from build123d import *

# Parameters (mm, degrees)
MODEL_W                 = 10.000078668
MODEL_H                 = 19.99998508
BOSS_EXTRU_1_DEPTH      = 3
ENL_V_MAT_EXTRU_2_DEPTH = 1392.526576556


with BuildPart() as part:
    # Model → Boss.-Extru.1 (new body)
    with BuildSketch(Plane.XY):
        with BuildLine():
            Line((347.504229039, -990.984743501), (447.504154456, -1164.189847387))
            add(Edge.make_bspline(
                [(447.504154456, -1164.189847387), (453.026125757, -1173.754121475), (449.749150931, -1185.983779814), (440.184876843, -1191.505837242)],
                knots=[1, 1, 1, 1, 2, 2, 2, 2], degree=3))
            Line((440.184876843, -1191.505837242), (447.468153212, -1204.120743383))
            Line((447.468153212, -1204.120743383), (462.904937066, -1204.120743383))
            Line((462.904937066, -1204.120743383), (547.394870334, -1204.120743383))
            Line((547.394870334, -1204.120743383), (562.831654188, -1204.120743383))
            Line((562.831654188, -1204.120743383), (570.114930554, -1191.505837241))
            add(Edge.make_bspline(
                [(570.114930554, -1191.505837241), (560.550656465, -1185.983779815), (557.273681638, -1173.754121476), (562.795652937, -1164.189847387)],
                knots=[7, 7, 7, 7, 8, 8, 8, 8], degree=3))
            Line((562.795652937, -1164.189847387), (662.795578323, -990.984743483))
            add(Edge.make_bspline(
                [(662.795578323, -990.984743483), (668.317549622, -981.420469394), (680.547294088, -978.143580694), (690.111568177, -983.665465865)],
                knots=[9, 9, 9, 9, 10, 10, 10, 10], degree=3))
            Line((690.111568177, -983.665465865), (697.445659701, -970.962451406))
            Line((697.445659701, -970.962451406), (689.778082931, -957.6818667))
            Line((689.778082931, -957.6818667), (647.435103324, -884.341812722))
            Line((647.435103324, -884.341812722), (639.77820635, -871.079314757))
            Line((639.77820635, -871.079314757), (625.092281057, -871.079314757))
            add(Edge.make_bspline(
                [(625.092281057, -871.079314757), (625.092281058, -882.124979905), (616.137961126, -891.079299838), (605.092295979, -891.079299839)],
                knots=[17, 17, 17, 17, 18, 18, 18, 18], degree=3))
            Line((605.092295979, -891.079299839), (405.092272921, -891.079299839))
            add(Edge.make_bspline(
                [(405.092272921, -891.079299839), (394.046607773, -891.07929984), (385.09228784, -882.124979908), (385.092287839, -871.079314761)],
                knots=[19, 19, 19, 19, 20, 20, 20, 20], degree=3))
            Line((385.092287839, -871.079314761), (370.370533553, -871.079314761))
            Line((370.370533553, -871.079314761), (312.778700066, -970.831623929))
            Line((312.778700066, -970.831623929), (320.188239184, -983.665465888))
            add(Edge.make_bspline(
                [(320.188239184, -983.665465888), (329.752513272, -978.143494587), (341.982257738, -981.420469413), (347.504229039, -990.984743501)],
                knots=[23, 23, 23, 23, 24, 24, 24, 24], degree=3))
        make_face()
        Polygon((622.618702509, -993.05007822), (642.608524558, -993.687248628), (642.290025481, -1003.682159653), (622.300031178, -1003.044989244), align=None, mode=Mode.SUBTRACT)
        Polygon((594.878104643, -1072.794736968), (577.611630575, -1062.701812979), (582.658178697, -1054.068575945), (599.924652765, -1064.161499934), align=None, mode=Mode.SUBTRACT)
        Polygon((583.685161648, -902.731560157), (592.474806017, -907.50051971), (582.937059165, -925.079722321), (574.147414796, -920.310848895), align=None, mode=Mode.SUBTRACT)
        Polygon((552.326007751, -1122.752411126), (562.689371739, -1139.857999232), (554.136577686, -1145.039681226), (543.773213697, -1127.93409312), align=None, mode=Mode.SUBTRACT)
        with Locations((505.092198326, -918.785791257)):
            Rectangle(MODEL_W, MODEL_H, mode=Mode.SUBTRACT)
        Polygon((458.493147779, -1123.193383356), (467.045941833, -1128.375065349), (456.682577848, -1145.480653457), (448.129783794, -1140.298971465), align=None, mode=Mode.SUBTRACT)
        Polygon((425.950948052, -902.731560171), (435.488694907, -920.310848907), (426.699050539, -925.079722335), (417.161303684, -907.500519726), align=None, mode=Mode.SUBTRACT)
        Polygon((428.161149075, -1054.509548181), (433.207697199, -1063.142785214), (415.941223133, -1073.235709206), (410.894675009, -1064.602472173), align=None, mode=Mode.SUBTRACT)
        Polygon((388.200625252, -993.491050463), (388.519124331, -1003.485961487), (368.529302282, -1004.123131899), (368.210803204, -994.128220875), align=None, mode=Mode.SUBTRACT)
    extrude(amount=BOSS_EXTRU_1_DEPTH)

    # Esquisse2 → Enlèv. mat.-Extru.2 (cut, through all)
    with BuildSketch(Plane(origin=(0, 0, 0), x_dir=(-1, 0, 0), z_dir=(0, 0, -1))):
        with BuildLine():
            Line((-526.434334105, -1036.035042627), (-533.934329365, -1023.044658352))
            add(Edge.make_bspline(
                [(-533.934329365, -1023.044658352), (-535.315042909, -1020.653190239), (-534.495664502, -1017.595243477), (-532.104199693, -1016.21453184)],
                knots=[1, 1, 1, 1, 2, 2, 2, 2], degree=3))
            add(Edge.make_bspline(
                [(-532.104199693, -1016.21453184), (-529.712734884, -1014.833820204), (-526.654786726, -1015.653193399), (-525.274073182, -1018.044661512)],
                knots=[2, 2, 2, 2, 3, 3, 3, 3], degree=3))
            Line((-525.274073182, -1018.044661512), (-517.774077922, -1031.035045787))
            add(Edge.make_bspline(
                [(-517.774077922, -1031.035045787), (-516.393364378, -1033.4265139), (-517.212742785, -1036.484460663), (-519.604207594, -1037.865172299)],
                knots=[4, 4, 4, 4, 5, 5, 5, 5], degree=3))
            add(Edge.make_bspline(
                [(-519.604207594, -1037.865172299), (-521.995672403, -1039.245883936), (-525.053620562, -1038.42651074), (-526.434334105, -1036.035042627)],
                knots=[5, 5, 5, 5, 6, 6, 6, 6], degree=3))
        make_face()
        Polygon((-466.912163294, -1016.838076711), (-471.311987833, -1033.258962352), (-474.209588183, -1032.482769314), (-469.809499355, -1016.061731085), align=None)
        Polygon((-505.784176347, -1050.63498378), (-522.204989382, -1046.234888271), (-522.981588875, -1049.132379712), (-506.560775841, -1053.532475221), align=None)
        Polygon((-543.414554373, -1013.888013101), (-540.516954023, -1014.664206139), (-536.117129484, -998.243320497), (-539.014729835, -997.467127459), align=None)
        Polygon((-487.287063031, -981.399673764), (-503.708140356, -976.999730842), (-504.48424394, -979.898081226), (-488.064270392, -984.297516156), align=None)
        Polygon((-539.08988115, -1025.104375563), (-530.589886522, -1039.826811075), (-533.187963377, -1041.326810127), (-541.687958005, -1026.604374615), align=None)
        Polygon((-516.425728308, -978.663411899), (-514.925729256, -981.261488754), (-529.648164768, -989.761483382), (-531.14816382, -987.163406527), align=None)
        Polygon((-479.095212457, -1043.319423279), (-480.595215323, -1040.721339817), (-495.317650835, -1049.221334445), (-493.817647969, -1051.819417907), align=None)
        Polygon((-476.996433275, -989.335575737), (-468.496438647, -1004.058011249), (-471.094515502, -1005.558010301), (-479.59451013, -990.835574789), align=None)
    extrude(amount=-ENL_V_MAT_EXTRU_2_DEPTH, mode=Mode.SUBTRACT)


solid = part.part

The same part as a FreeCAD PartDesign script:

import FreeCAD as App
import Part
import Sketcher
from FreeCAD import Vector

doc = App.newDocument("Part")
body = doc.addObject("PartDesign::Body", "Body")

sketch1 = body.newObject("Sketcher::SketchObject", "Sketch")
sketch1.AttachmentSupport = (doc.getObject("XY_Plane"), [""])
sketch1.MapMode = "FlatFace"
sketch1.addGeometry(Part.LineSegment(Vector(347.504229, -990.984744, 0), Vector(447.504154, -1164.189847, 0)), False)
sketch1.addGeometry(Part.BSplineCurve([Vector(447.504154, -1164.189847, 0), Vector(453.026126, -1173.754121, 0), Vector(449.749151, -1185.98378, 0), Vector(440.184877, -1191.505837, 0)], [4, 4], [1, 2], False, 3, [1, 1, 1, 1], False), False)
sketch1.addGeometry(Part.LineSegment(Vector(440.184877, -1191.505837, 0), Vector(447.468153, -1204.120743, 0)), False)
sketch1.addGeometry(Part.LineSegment(Vector(447.468153, -1204.120743, 0), Vector(562.831654, -1204.120743, 0)), False)
sketch1.addGeometry(Part.LineSegment(Vector(562.831654, -1204.120743, 0), Vector(570.114931, -1191.505837, 0)), False)
sketch1.addGeometry(Part.BSplineCurve([Vector(570.114931, -1191.505837, 0), Vector(560.550656, -1185.98378, 0), Vector(557.273682, -1173.754121, 0), Vector(562.795653, -1164.189847, 0)], [4, 4], [7, 8], False, 3, [1, 1, 1, 1], False), False)
sketch1.addGeometry(Part.LineSegment(Vector(562.795653, -1164.189847, 0), Vector(662.795578, -990.984743, 0)), False)
sketch1.addGeometry(Part.BSplineCurve([Vector(662.795578, -990.984743, 0), Vector(668.31755, -981.420469, 0), Vector(680.547294, -978.143581, 0), Vector(690.111568, -983.665466, 0)], [4, 4], [9, 10], False, 3, [1, 1, 1, 1], False), False)
sketch1.addGeometry(Part.LineSegment(Vector(690.111568, -983.665466, 0), Vector(697.44566, -970.962451, 0)), False)
sketch1.addGeometry(Part.LineSegment(Vector(697.44566, -970.962451, 0), Vector(689.778083, -957.681867, 0)), False)
sketch1.addGeometry(Part.LineSegment(Vector(689.778083, -957.681867, 0), Vector(647.435103, -884.341813, 0)), False)
sketch1.addGeometry(Part.LineSegment(Vector(647.435103, -884.341813, 0), Vector(639.778206, -871.079315, 0)), False)
sketch1.addGeometry(Part.LineSegment(Vector(639.778206, -871.079315, 0), Vector(625.092281, -871.079315, 0)), False)
sketch1.addGeometry(Part.BSplineCurve([Vector(625.092281, -871.079315, 0), Vector(625.092281, -882.12498, 0), Vector(616.137961, -891.0793, 0), Vector(605.092296, -891.0793, 0)], [4, 4], [17, 18], False, 3, [1, 1, 1, 1], False), False)
sketch1.addGeometry(Part.LineSegment(Vector(605.092296, -891.0793, 0), Vector(405.092273, -891.0793, 0)), False)
sketch1.addGeometry(Part.BSplineCurve([Vector(405.092273, -891.0793, 0), Vector(394.046608, -891.0793, 0), Vector(385.092288, -882.12498, 0), Vector(385.092288, -871.079315, 0)], [4, 4], [19, 20], False, 3, [1, 1, 1, 1], False), False)
sketch1.addGeometry(Part.LineSegment(Vector(385.092288, -871.079315, 0), Vector(370.370534, -871.079315, 0)), False)
sketch1.addGeometry(Part.LineSegment(Vector(370.370534, -871.079315, 0), Vector(312.7787, -970.831624, 0)), False)
sketch1.addGeometry(Part.LineSegment(Vector(312.7787, -970.831624, 0), Vector(320.188239, -983.665466, 0)), False)
sketch1.addGeometry(Part.BSplineCurve([Vector(320.188239, -983.665466, 0), Vector(329.752513, -978.143495, 0), Vector(341.982258, -981.420469, 0), Vector(347.504229, -990.984744, 0)], [4, 4], [23, 24], False, 3, [1, 1, 1, 1], False), False)
sketch1.addGeometry(Part.LineSegment(Vector(448.129784, -1140.298971, 0), Vector(458.493148, -1123.193383, 0)), False)
sketch1.addGeometry(Part.LineSegment(Vector(458.493148, -1123.193383, 0), Vector(467.045942, -1128.375065, 0)), False)
sketch1.addGeometry(Part.LineSegment(Vector(467.045942, -1128.375065, 0), Vector(456.682578, -1145.480653, 0)), False)
sketch1.addGeometry(Part.LineSegment(Vector(456.682578, -1145.480653, 0), Vector(448.129784, -1140.298971, 0)), False)
sketch1.addGeometry(Part.LineSegment(Vector(410.894675, -1064.602472, 0), Vector(428.161149, -1054.509548, 0)), False)
sketch1.addGeometry(Part.LineSegment(Vector(428.161149, -1054.509548, 0), Vector(433.207697, -1063.142785, 0)), False)
sketch1.addGeometry(Part.LineSegment(Vector(433.207697, -1063.142785, 0), Vector(415.941223, -1073.235709, 0)), False)
sketch1.addGeometry(Part.LineSegment(Vector(415.941223, -1073.235709, 0), Vector(410.894675, -1064.602472, 0)), False)
sketch1.addGeometry(Part.LineSegment(Vector(543.773214, -1127.934093, 0), Vector(552.326008, -1122.752411, 0)), False)
sketch1.addGeometry(Part.LineSegment(Vector(552.326008, -1122.752411, 0), Vector(562.689372, -1139.857999, 0)), False)
sketch1.addGeometry(Part.LineSegment(Vector(562.689372, -1139.857999, 0), Vector(554.136578, -1145.039681, 0)), False)
sketch1.addGeometry(Part.LineSegment(Vector(554.136578, -1145.039681, 0), Vector(543.773214, -1127.934093, 0)), False)
sketch1.addGeometry(Part.LineSegment(Vector(599.924653, -1064.1615, 0), Vector(594.878105, -1072.794737, 0)), False)
sketch1.addGeometry(Part.LineSegment(Vector(594.878105, -1072.794737, 0), Vector(577.611631, -1062.701813, 0)), False)
sketch1.addGeometry(Part.LineSegment(Vector(577.611631, -1062.701813, 0), Vector(582.658179, -1054.068576, 0)), False)
sketch1.addGeometry(Part.LineSegment(Vector(582.658179, -1054.068576, 0), Vector(599.924653, -1064.1615, 0)), False)
sketch1.addGeometry(Part.LineSegment(Vector(368.210803, -994.128221, 0), Vector(388.200625, -993.49105, 0)), False)
sketch1.addGeometry(Part.LineSegment(Vector(388.200625, -993.49105, 0), Vector(388.519124, -1003.485961, 0)), False)
sketch1.addGeometry(Part.LineSegment(Vector(388.519124, -1003.485961, 0), Vector(368.529302, -1004.123132, 0)), False)
sketch1.addGeometry(Part.LineSegment(Vector(368.529302, -1004.123132, 0), Vector(368.210803, -994.128221, 0)), False)
sketch1.addGeometry(Part.LineSegment(Vector(417.161304, -907.50052, 0), Vector(425.950948, -902.73156, 0)), False)
sketch1.addGeometry(Part.LineSegment(Vector(425.950948, -902.73156, 0), Vector(435.488695, -920.310849, 0)), False)
sketch1.addGeometry(Part.LineSegment(Vector(435.488695, -920.310849, 0), Vector(426.699051, -925.079722, 0)), False)
sketch1.addGeometry(Part.LineSegment(Vector(426.699051, -925.079722, 0), Vector(417.161304, -907.50052, 0)), False)
sketch1.addGeometry(Part.LineSegment(Vector(510.092238, -928.785784, 0), Vector(500.092159, -928.785784, 0)), False)
sketch1.addGeometry(Part.LineSegment(Vector(500.092159, -928.785784, 0), Vector(500.092159, -908.785799, 0)), False)
sketch1.addGeometry(Part.LineSegment(Vector(500.092159, -908.785799, 0), Vector(510.092238, -908.785799, 0)), False)
sketch1.addGeometry(Part.LineSegment(Vector(510.092238, -908.785799, 0), Vector(510.092238, -928.785784, 0)), False)
sketch1.addGeometry(Part.LineSegment(Vector(622.300031, -1003.044989, 0), Vector(622.618703, -993.050078, 0)), False)
sketch1.addGeometry(Part.LineSegment(Vector(622.618703, -993.050078, 0), Vector(642.608525, -993.687249, 0)), False)
sketch1.addGeometry(Part.LineSegment(Vector(642.608525, -993.687249, 0), Vector(642.290025, -1003.68216, 0)), False)
sketch1.addGeometry(Part.LineSegment(Vector(642.290025, -1003.68216, 0), Vector(622.300031, -1003.044989, 0)), False)
sketch1.addGeometry(Part.LineSegment(Vector(574.147415, -920.310849, 0), Vector(583.685162, -902.73156, 0)), False)
sketch1.addGeometry(Part.LineSegment(Vector(583.685162, -902.73156, 0), Vector(592.474806, -907.50052, 0)), False)
sketch1.addGeometry(Part.LineSegment(Vector(592.474806, -907.50052, 0), Vector(582.937059, -925.079722, 0)), False)
sketch1.addGeometry(Part.LineSegment(Vector(582.937059, -925.079722, 0), Vector(574.147415, -920.310849, 0)), False)
sketch1.addConstraint(Sketcher.Constraint("Block", 1))
sketch1.addConstraint(Sketcher.Constraint("Block", 5))
sketch1.addConstraint(Sketcher.Constraint("Block", 7))
sketch1.addConstraint(Sketcher.Constraint("Block", 13))
sketch1.addConstraint(Sketcher.Constraint("Block", 15))
sketch1.addConstraint(Sketcher.Constraint("Block", 19))
sketch1.addConstraint(Sketcher.Constraint("Coincident", 0, 2, 1, 1))
sketch1.addConstraint(Sketcher.Constraint("Coincident", 1, 2, 2, 1))
sketch1.addConstraint(Sketcher.Constraint("Coincident", 2, 2, 3, 1))
sketch1.addConstraint(Sketcher.Constraint("Coincident", 3, 2, 4, 1))
sketch1.addConstraint(Sketcher.Constraint("Coincident", 4, 2, 5, 1))
sketch1.addConstraint(Sketcher.Constraint("Coincident", 5, 2, 6, 1))
sketch1.addConstraint(Sketcher.Constraint("Coincident", 6, 2, 7, 1))
sketch1.addConstraint(Sketcher.Constraint("Coincident", 7, 2, 8, 1))
sketch1.addConstraint(Sketcher.Constraint("Coincident", 8, 2, 9, 1))
sketch1.addConstraint(Sketcher.Constraint("Coincident", 9, 2, 10, 1))
sketch1.addConstraint(Sketcher.Constraint("Coincident", 10, 2, 11, 1))
sketch1.addConstraint(Sketcher.Constraint("Coincident", 11, 2, 12, 1))
sketch1.addConstraint(Sketcher.Constraint("Coincident", 12, 2, 13, 1))
sketch1.addConstraint(Sketcher.Constraint("Coincident", 13, 2, 14, 1))
sketch1.addConstraint(Sketcher.Constraint("Coincident", 14, 2, 15, 1))
sketch1.addConstraint(Sketcher.Constraint("Coincident", 15, 2, 16, 1))
sketch1.addConstraint(Sketcher.Constraint("Coincident", 16, 2, 17, 1))
sketch1.addConstraint(Sketcher.Constraint("Coincident", 17, 2, 18, 1))
sketch1.addConstraint(Sketcher.Constraint("Coincident", 18, 2, 19, 1))
sketch1.addConstraint(Sketcher.Constraint("Coincident", 19, 2, 0, 1))
sketch1.addConstraint(Sketcher.Constraint("Coincident", 20, 2, 21, 1))
sketch1.addConstraint(Sketcher.Constraint("Coincident", 21, 2, 22, 1))
sketch1.addConstraint(Sketcher.Constraint("Coincident", 22, 2, 23, 1))
sketch1.addConstraint(Sketcher.Constraint("Coincident", 23, 2, 20, 1))
sketch1.addConstraint(Sketcher.Constraint("Coincident", 24, 2, 25, 1))
sketch1.addConstraint(Sketcher.Constraint("Coincident", 25, 2, 26, 1))
sketch1.addConstraint(Sketcher.Constraint("Coincident", 26, 2, 27, 1))
sketch1.addConstraint(Sketcher.Constraint("Coincident", 27, 2, 24, 1))
sketch1.addConstraint(Sketcher.Constraint("Coincident", 28, 2, 29, 1))
sketch1.addConstraint(Sketcher.Constraint("Coincident", 29, 2, 30, 1))
sketch1.addConstraint(Sketcher.Constraint("Coincident", 30, 2, 31, 1))
sketch1.addConstraint(Sketcher.Constraint("Coincident", 31, 2, 28, 1))
sketch1.addConstraint(Sketcher.Constraint("Coincident", 32, 2, 33, 1))
sketch1.addConstraint(Sketcher.Constraint("Coincident", 33, 2, 34, 1))
sketch1.addConstraint(Sketcher.Constraint("Coincident", 34, 2, 35, 1))
sketch1.addConstraint(Sketcher.Constraint("Coincident", 35, 2, 32, 1))
sketch1.addConstraint(Sketcher.Constraint("Coincident", 36, 2, 37, 1))
sketch1.addConstraint(Sketcher.Constraint("Coincident", 37, 2, 38, 1))
sketch1.addConstraint(Sketcher.Constraint("Coincident", 38, 2, 39, 1))
sketch1.addConstraint(Sketcher.Constraint("Coincident", 39, 2, 36, 1))
sketch1.addConstraint(Sketcher.Constraint("Coincident", 40, 2, 41, 1))
sketch1.addConstraint(Sketcher.Constraint("Coincident", 41, 2, 42, 1))
sketch1.addConstraint(Sketcher.Constraint("Coincident", 42, 2, 43, 1))
sketch1.addConstraint(Sketcher.Constraint("Coincident", 43, 2, 40, 1))
sketch1.addConstraint(Sketcher.Constraint("Coincident", 44, 2, 45, 1))
sketch1.addConstraint(Sketcher.Constraint("Coincident", 45, 2, 46, 1))
sketch1.addConstraint(Sketcher.Constraint("Coincident", 46, 2, 47, 1))
sketch1.addConstraint(Sketcher.Constraint("Coincident", 47, 2, 44, 1))
sketch1.addConstraint(Sketcher.Constraint("Coincident", 48, 2, 49, 1))
sketch1.addConstraint(Sketcher.Constraint("Coincident", 49, 2, 50, 1))
sketch1.addConstraint(Sketcher.Constraint("Coincident", 50, 2, 51, 1))
sketch1.addConstraint(Sketcher.Constraint("Coincident", 51, 2, 48, 1))
sketch1.addConstraint(Sketcher.Constraint("Coincident", 52, 2, 53, 1))
sketch1.addConstraint(Sketcher.Constraint("Coincident", 53, 2, 54, 1))
sketch1.addConstraint(Sketcher.Constraint("Coincident", 54, 2, 55, 1))
sketch1.addConstraint(Sketcher.Constraint("Coincident", 55, 2, 52, 1))
sketch1.addConstraint(Sketcher.Constraint("Horizontal", 3))
sketch1.addConstraint(Sketcher.Constraint("Horizontal", 12))
sketch1.addConstraint(Sketcher.Constraint("Horizontal", 16))
sketch1.addConstraint(Sketcher.Constraint("Horizontal", 44))
sketch1.addConstraint(Sketcher.Constraint("Vertical", 45))
sketch1.addConstraint(Sketcher.Constraint("Horizontal", 46))
sketch1.addConstraint(Sketcher.Constraint("Vertical", 47))
sketch1.addConstraint(Sketcher.Constraint("Distance", 41, 20.0))
sketch1.addConstraint(Sketcher.Constraint("Distance", 42, 10.0))
sketch1.addConstraint(Sketcher.Constraint("Distance", 52, 20.0))
sketch1.addConstraint(Sketcher.Constraint("Distance", 55, 10.0))
sketch1.addConstraint(Sketcher.Constraint("DistanceX", 3, 1, 3, 2, 115.363501))
sketch1.addConstraint(Sketcher.Constraint("DistanceY", 29, 2, -1, 1, 1139.857999))
sketch1.addConstraint(Sketcher.Constraint("DistanceX", 2, 2, 0, 2, 0.036001))
sketch1.addConstraint(Sketcher.Constraint("DistanceY", 3, 2, 6, 2, 213.136))
sketch1.addConstraint(Sketcher.Constraint("DistanceX", 24, 2, 20, 2, 30.331999))
sketch1.addConstraint(Sketcher.Constraint("DistanceX", 44, 2, 44, 1, 10.000079))
sketch1.addConstraint(Sketcher.Constraint("DistanceX", -1, 1, 17, 2, 312.7787))
sketch1.addConstraint(Sketcher.Constraint("DistanceY", 35, 2, -1, 1, 1064.1615))
sketch1.addConstraint(Sketcher.Constraint("DistanceY", 45, 2, -1, 1, 908.785799))
sketch1.addConstraint(Sketcher.Constraint("DistanceX", 12, 2, 9, 2, 64.685802))
sketch1.addConstraint(Sketcher.Constraint("DistanceY", 0, 2, 24, 2, 109.680299))
sketch1.addConstraint(Sketcher.Constraint("DistanceY", 20, 2, 25, 2, 60.050598))
sketch1.addConstraint(Sketcher.Constraint("DistanceY", 23, 2, 27, 2, 75.696499))
sketch1.addConstraint(Sketcher.Constraint("DistanceY", 28, 2, 33, 2, 60.050598))
sketch1.addConstraint(Sketcher.Constraint("DistanceX", 36, 2, 37, 2, 0.318499))
sketch1.addConstraint(Sketcher.Constraint("DistanceX", 39, 2, 38, 2, 0.318499))
sketch1.addConstraint(Sketcher.Constraint("DistanceY", 37, 2, 40, 2, 100.754401))
sketch1.addConstraint(Sketcher.Constraint("DistanceY", 36, 2, 41, 2, 73.180202))
sketch1.addConstraint(Sketcher.Constraint("DistanceX", 50, 2, 49, 2, 0.318499))
sketch1.addConstraint(Sketcher.Constraint("DistanceX", 53, 2, 11, 2, 47.3034))
sketch1.addConstraint(Sketcher.Constraint("Distance", 8, 14.668179))
sketch1.addConstraint(Sketcher.Constraint("Distance", 10, 84.68584))
sketch1.addConstraint(Sketcher.Constraint("Distance", 11, 15.314109))
sketch1.addConstraint(Sketcher.Constraint("Distance", 17, 115.183951))
sketch1.addConstraint(Sketcher.Constraint("Distance", 20, 20.000011))
sketch1.addConstraint(Sketcher.Constraint("Distance", 22, 20.000011))
sketch1.addConstraint(Sketcher.Constraint("Distance", 25, 10.000021))
sketch1.addConstraint(Sketcher.Constraint("Distance", 27, 10.000021))
sketch1.addConstraint(Sketcher.Constraint("Distance", 29, 20.000011))
sketch1.addConstraint(Sketcher.Constraint("Distance", 31, 20.000011))
sketch1.addConstraint(Sketcher.Constraint("Distance", 32, 10.000021))
sketch1.addConstraint(Sketcher.Constraint("Distance", 34, 10.000021))
sketch1.addConstraint(Sketcher.Constraint("Distance", 40, 10.000041))
sketch1.addConstraint(Sketcher.Constraint("Distance", 48, 9.99999))
sketch1.addConstraint(Sketcher.Constraint("Distance", 53, 10.000041))
sketch1.addConstraint(Sketcher.Constraint("DistanceX", 12, 2, 12, 1, 14.685925))
sketch1.addConstraint(Sketcher.Constraint("DistanceX", 16, 2, 16, 1, 14.721754))
sketch1.addConstraint(Sketcher.Constraint("DistanceY", 45, 1, 45, 2, 19.999985))
sketch1.addConstraint(Sketcher.Constraint("DistanceX", -1, 1, 8, 2, 697.44566))
sketch1.addConstraint(Sketcher.Constraint("DistanceX", -1, 1, 21, 2, 467.045942))
sketch1.addConstraint(Sketcher.Constraint("DistanceY", 23, 2, -1, 1, 1140.298971))
sketch1.addConstraint(Sketcher.Constraint("DistanceX", -1, 1, 24, 2, 428.161149))
sketch1.addConstraint(Sketcher.Constraint("DistanceY", 26, 2, -1, 1, 1073.235709))
sketch1.addConstraint(Sketcher.Constraint("DistanceY", 28, 2, -1, 1, 1122.752411))
sketch1.addConstraint(Sketcher.Constraint("DistanceX", -1, 1, 29, 2, 562.689372))
sketch1.addConstraint(Sketcher.Constraint("DistanceY", 30, 2, -1, 1, 1145.039681))
sketch1.addConstraint(Sketcher.Constraint("DistanceX", -1, 1, 33, 2, 577.611631))
sketch1.addConstraint(Sketcher.Constraint("DistanceX", -1, 1, 34, 2, 582.658179))
sketch1.addConstraint(Sketcher.Constraint("DistanceY", 36, 2, -1, 1, 993.49105))
sketch1.addConstraint(Sketcher.Constraint("DistanceY", 37, 2, -1, 1, 1003.485961))
sketch1.addConstraint(Sketcher.Constraint("DistanceY", 38, 2, -1, 1, 1004.123132))
sketch1.addConstraint(Sketcher.Constraint("DistanceY", 39, 2, -1, 1, 994.128221))
sketch1.addConstraint(Sketcher.Constraint("DistanceX", -1, 1, 40, 2, 425.950948))
sketch1.addConstraint(Sketcher.Constraint("DistanceX", -1, 1, 42, 2, 426.699051))
sketch1.addConstraint(Sketcher.Constraint("DistanceY", 43, 2, -1, 1, 907.50052))
sketch1.addConstraint(Sketcher.Constraint("DistanceX", -1, 1, 44, 2, 500.092159))
sketch1.addConstraint(Sketcher.Constraint("DistanceY", 48, 2, -1, 1, 993.050078))
sketch1.addConstraint(Sketcher.Constraint("DistanceY", 49, 2, -1, 1, 993.687249))
sketch1.addConstraint(Sketcher.Constraint("DistanceY", 50, 2, -1, 1, 1003.68216))
sketch1.addConstraint(Sketcher.Constraint("DistanceX", -1, 1, 51, 2, 622.300031))
sketch1.addConstraint(Sketcher.Constraint("DistanceY", 51, 2, -1, 1, 1003.044989))
sketch1.addConstraint(Sketcher.Constraint("DistanceX", -1, 1, 52, 2, 583.685162))
sketch1.addConstraint(Sketcher.Constraint("DistanceY", 52, 2, -1, 1, 902.73156))
sketch1.addConstraint(Sketcher.Constraint("DistanceX", -1, 1, 54, 2, 582.937059))
sketch1.addConstraint(Sketcher.Constraint("DistanceY", 55, 2, -1, 1, 920.310849))
sketch1.addConstraint(Sketcher.Constraint("DistanceX", 10, 2, 9, 2, 42.34298))
sketch1.addConstraint(Sketcher.Constraint("DistanceY", 2, 2, 20, 2, 80.92736))
sketch1.addConstraint(Sketcher.Constraint("DistanceY", 21, 2, 20, 2, 5.181682))
sketch1.addConstraint(Sketcher.Constraint("DistanceY", 22, 2, 21, 2, 17.105588))
sketch1.addConstraint(Sketcher.Constraint("DistanceX", 26, 2, 23, 2, 32.188561))
sketch1.addConstraint(Sketcher.Constraint("DistanceX", 28, 2, 30, 2, 1.81057))
sketch1.addConstraint(Sketcher.Constraint("DistanceY", 31, 2, 28, 2, 5.181682))
sketch1.addConstraint(Sketcher.Constraint("DistanceX", 31, 2, 32, 2, 51.104891))
sketch1.addConstraint(Sketcher.Constraint("DistanceY", 32, 2, 34, 2, 18.726161))
sketch1.addConstraint(Sketcher.Constraint("DistanceX", 36, 2, 27, 2, 22.69405))
sketch1.addConstraint(Sketcher.Constraint("DistanceX", 39, 2, 37, 2, 20.308321))
sketch1.addConstraint(Sketcher.Constraint("DistanceX", 49, 2, 9, 2, 47.169558))
pad1 = body.newObject("PartDesign::Pad", "Pad")
pad1.Profile = sketch1
pad1.Length = 3

sketch2 = body.newObject("Sketcher::SketchObject", "Sketch001")
sketch2.AttachmentSupport = (doc.getObject("XY_Plane"), [""])
sketch2.MapMode = "FlatFace"
sketch2.addGeometry(Part.LineSegment(Vector(533.934329, -1023.044658, 0), Vector(526.434334, -1036.035043, 0)), False)
sketch2.addGeometry(Part.BSplineCurve([Vector(519.604208, -1037.865172, 0), Vector(521.995672, -1039.245884, 0), Vector(525.053621, -1038.426511, 0), Vector(526.434334, -1036.035043, 0)], [4, 4], [5, 6], False, 3, [1, 1, 1, 1], False), False)
sketch2.addGeometry(Part.BSplineCurve([Vector(517.774078, -1031.035046, 0), Vector(516.393364, -1033.426514, 0), Vector(517.212743, -1036.484461, 0), Vector(519.604208, -1037.865172, 0)], [4, 4], [4, 5], False, 3, [1, 1, 1, 1], False), False)
sketch2.addGeometry(Part.LineSegment(Vector(517.774078, -1031.035046, 0), Vector(525.274073, -1018.044662, 0)), False)
sketch2.addGeometry(Part.BSplineCurve([Vector(532.1042, -1016.214532, 0), Vector(529.712735, -1014.83382, 0), Vector(526.654787, -1015.653193, 0), Vector(525.274073, -1018.044662, 0)], [4, 4], [2, 3], False, 3, [1, 1, 1, 1], False), False)
sketch2.addGeometry(Part.BSplineCurve([Vector(533.934329, -1023.044658, 0), Vector(535.315043, -1020.65319, 0), Vector(534.495665, -1017.595243, 0), Vector(532.1042, -1016.214532, 0)], [4, 4], [1, 2], False, 3, [1, 1, 1, 1], False), False)
sketch2.addGeometry(Part.LineSegment(Vector(471.311988, -1033.258962, 0), Vector(466.912163, -1016.838077, 0)), False)
sketch2.addGeometry(Part.LineSegment(Vector(466.912163, -1016.838077, 0), Vector(469.809499, -1016.061731, 0)), False)
sketch2.addGeometry(Part.LineSegment(Vector(469.809499, -1016.061731, 0), Vector(474.209588, -1032.482769, 0)), False)
sketch2.addGeometry(Part.LineSegment(Vector(474.209588, -1032.482769, 0), Vector(471.311988, -1033.258962, 0)), False)
sketch2.addGeometry(Part.LineSegment(Vector(505.784176, -1050.634984, 0), Vector(522.204989, -1046.234888, 0)), False)
sketch2.addGeometry(Part.LineSegment(Vector(522.204989, -1046.234888, 0), Vector(522.981589, -1049.13238, 0)), False)
sketch2.addGeometry(Part.LineSegment(Vector(522.981589, -1049.13238, 0), Vector(506.560776, -1053.532475, 0)), False)
sketch2.addGeometry(Part.LineSegment(Vector(506.560776, -1053.532475, 0), Vector(505.784176, -1050.634984, 0)), False)
sketch2.addGeometry(Part.LineSegment(Vector(543.414554, -1013.888013, 0), Vector(540.516954, -1014.664206, 0)), False)
sketch2.addGeometry(Part.LineSegment(Vector(540.516954, -1014.664206, 0), Vector(536.117129, -998.24332, 0)), False)
sketch2.addGeometry(Part.LineSegment(Vector(536.117129, -998.24332, 0), Vector(539.01473, -997.467127, 0)), False)
sketch2.addGeometry(Part.LineSegment(Vector(539.01473, -997.467127, 0), Vector(543.414554, -1013.888013, 0)), False)
sketch2.addGeometry(Part.LineSegment(Vector(487.287063, -981.399674, 0), Vector(503.70814, -976.999731, 0)), False)
sketch2.addGeometry(Part.LineSegment(Vector(503.70814, -976.999731, 0), Vector(504.484244, -979.898081, 0)), False)
sketch2.addGeometry(Part.LineSegment(Vector(504.484244, -979.898081, 0), Vector(488.06427, -984.297516, 0)), False)
sketch2.addGeometry(Part.LineSegment(Vector(488.06427, -984.297516, 0), Vector(487.287063, -981.399674, 0)), False)
sketch2.addGeometry(Part.LineSegment(Vector(530.589887, -1039.826811, 0), Vector(539.089881, -1025.104376, 0)), False)
sketch2.addGeometry(Part.LineSegment(Vector(539.089881, -1025.104376, 0), Vector(541.687958, -1026.604375, 0)), False)
sketch2.addGeometry(Part.LineSegment(Vector(541.687958, -1026.604375, 0), Vector(533.187963, -1041.32681, 0)), False)
sketch2.addGeometry(Part.LineSegment(Vector(533.187963, -1041.32681, 0), Vector(530.589887, -1039.826811, 0)), False)
sketch2.addGeometry(Part.LineSegment(Vector(514.925729, -981.261489, 0), Vector(516.425728, -978.663412, 0)), False)
sketch2.addGeometry(Part.LineSegment(Vector(516.425728, -978.663412, 0), Vector(531.148164, -987.163407, 0)), False)
sketch2.addGeometry(Part.LineSegment(Vector(531.148164, -987.163407, 0), Vector(529.648165, -989.761483, 0)), False)
sketch2.addGeometry(Part.LineSegment(Vector(529.648165, -989.761483, 0), Vector(514.925729, -981.261489, 0)), False)
sketch2.addGeometry(Part.LineSegment(Vector(479.095212, -1043.319423, 0), Vector(480.595215, -1040.72134, 0)), False)
sketch2.addGeometry(Part.LineSegment(Vector(480.595215, -1040.72134, 0), Vector(495.317651, -1049.221334, 0)), False)
sketch2.addGeometry(Part.LineSegment(Vector(495.317651, -1049.221334, 0), Vector(493.817648, -1051.819418, 0)), False)
sketch2.addGeometry(Part.LineSegment(Vector(493.817648, -1051.819418, 0), Vector(479.095212, -1043.319423, 0)), False)
sketch2.addGeometry(Part.LineSegment(Vector(468.496439, -1004.058011, 0), Vector(476.996433, -989.335576, 0)), False)
sketch2.addGeometry(Part.LineSegment(Vector(476.996433, -989.335576, 0), Vector(479.59451, -990.835575, 0)), False)
sketch2.addGeometry(Part.LineSegment(Vector(479.59451, -990.835575, 0), Vector(471.094516, -1005.55801, 0)), False)
sketch2.addGeometry(Part.LineSegment(Vector(471.094516, -1005.55801, 0), Vector(468.496439, -1004.058011, 0)), False)
sketch2.addConstraint(Sketcher.Constraint("Block", 1))
sketch2.addConstraint(Sketcher.Constraint("Block", 2))
sketch2.addConstraint(Sketcher.Constraint("Block", 4))
sketch2.addConstraint(Sketcher.Constraint("Block", 5))
sketch2.addConstraint(Sketcher.Constraint("Coincident", 0, 2, 1, 2))
sketch2.addConstraint(Sketcher.Constraint("Coincident", 2, 1, 3, 1))
sketch2.addConstraint(Sketcher.Constraint("Coincident", 3, 2, 4, 2))
sketch2.addConstraint(Sketcher.Constraint("Coincident", 5, 1, 0, 1))
sketch2.addConstraint(Sketcher.Constraint("Coincident", 6, 2, 7, 1))
sketch2.addConstraint(Sketcher.Constraint("Coincident", 7, 2, 8, 1))
sketch2.addConstraint(Sketcher.Constraint("Coincident", 8, 2, 9, 1))
sketch2.addConstraint(Sketcher.Constraint("Coincident", 9, 2, 6, 1))
sketch2.addConstraint(Sketcher.Constraint("Coincident", 10, 2, 11, 1))
sketch2.addConstraint(Sketcher.Constraint("Coincident", 11, 2, 12, 1))
sketch2.addConstraint(Sketcher.Constraint("Coincident", 12, 2, 13, 1))
sketch2.addConstraint(Sketcher.Constraint("Coincident", 13, 2, 10, 1))
sketch2.addConstraint(Sketcher.Constraint("Coincident", 14, 2, 15, 1))
sketch2.addConstraint(Sketcher.Constraint("Coincident", 15, 2, 16, 1))
sketch2.addConstraint(Sketcher.Constraint("Coincident", 16, 2, 17, 1))
sketch2.addConstraint(Sketcher.Constraint("Coincident", 17, 2, 14, 1))
sketch2.addConstraint(Sketcher.Constraint("Coincident", 18, 2, 19, 1))
sketch2.addConstraint(Sketcher.Constraint("Coincident", 19, 2, 20, 1))
sketch2.addConstraint(Sketcher.Constraint("Coincident", 20, 2, 21, 1))
sketch2.addConstraint(Sketcher.Constraint("Coincident", 21, 2, 18, 1))
sketch2.addConstraint(Sketcher.Constraint("Coincident", 22, 2, 23, 1))
sketch2.addConstraint(Sketcher.Constraint("Coincident", 23, 2, 24, 1))
sketch2.addConstraint(Sketcher.Constraint("Coincident", 24, 2, 25, 1))
sketch2.addConstraint(Sketcher.Constraint("Coincident", 25, 2, 22, 1))
sketch2.addConstraint(Sketcher.Constraint("Coincident", 26, 2, 27, 1))
sketch2.addConstraint(Sketcher.Constraint("Coincident", 27, 2, 28, 1))
sketch2.addConstraint(Sketcher.Constraint("Coincident", 28, 2, 29, 1))
sketch2.addConstraint(Sketcher.Constraint("Coincident", 29, 2, 26, 1))
sketch2.addConstraint(Sketcher.Constraint("Coincident", 30, 2, 31, 1))
sketch2.addConstraint(Sketcher.Constraint("Coincident", 31, 2, 32, 1))
sketch2.addConstraint(Sketcher.Constraint("Coincident", 32, 2, 33, 1))
sketch2.addConstraint(Sketcher.Constraint("Coincident", 33, 2, 30, 1))
sketch2.addConstraint(Sketcher.Constraint("Coincident", 34, 2, 35, 1))
sketch2.addConstraint(Sketcher.Constraint("Coincident", 35, 2, 36, 1))
sketch2.addConstraint(Sketcher.Constraint("Coincident", 36, 2, 37, 1))
sketch2.addConstraint(Sketcher.Constraint("Coincident", 37, 2, 34, 1))
sketch2.addConstraint(Sketcher.Constraint("Distance", 22, 17.0))
sketch2.addConstraint(Sketcher.Constraint("Distance", 23, 3.0))
sketch2.addConstraint(Sketcher.Constraint("Distance", 24, 17.0))
sketch2.addConstraint(Sketcher.Constraint("Distance", 25, 3.0))
sketch2.addConstraint(Sketcher.Constraint("Distance", 26, 3.0))
sketch2.addConstraint(Sketcher.Constraint("Distance", 27, 17.0))
sketch2.addConstraint(Sketcher.Constraint("Distance", 28, 3.0))
sketch2.addConstraint(Sketcher.Constraint("Distance", 29, 17.0))
sketch2.addConstraint(Sketcher.Constraint("Distance", 31, 17.0))
sketch2.addConstraint(Sketcher.Constraint("Distance", 33, 17.0))
sketch2.addConstraint(Sketcher.Constraint("Distance", 34, 17.0))
sketch2.addConstraint(Sketcher.Constraint("Distance", 35, 3.0))
sketch2.addConstraint(Sketcher.Constraint("Distance", 36, 17.0))
sketch2.addConstraint(Sketcher.Constraint("Distance", 37, 3.0))
sketch2.addConstraint(Sketcher.Constraint("DistanceY", 23, 2, 22, 2, 1.499999))
sketch2.addConstraint(Sketcher.Constraint("DistanceX", 28, 2, 27, 2, 1.499999))
sketch2.addConstraint(Sketcher.Constraint("DistanceY", 35, 2, 34, 2, 1.499999))
sketch2.addConstraint(Sketcher.Constraint("DistanceX", 9, 2, 10, 2, 50.893002))
sketch2.addConstraint(Sketcher.Constraint("DistanceX", 8, 2, 11, 2, 48.772001))
sketch2.addConstraint(Sketcher.Constraint("DistanceY", 7, 2, 18, 2, 39.062))
sketch2.addConstraint(Sketcher.Constraint("DistanceX", -1, 1, 7, 2, 469.809499))
sketch2.addConstraint(Sketcher.Constraint("DistanceX", 9, 2, 8, 2, 2.8976))
sketch2.addConstraint(Sketcher.Constraint("DistanceY", 9, 2, 3, 2, 15.214301))
sketch2.addConstraint(Sketcher.Constraint("DistanceX", 13, 2, 12, 2, 0.776599))
sketch2.addConstraint(Sketcher.Constraint("DistanceX", 15, 2, 16, 2, 2.8976))
sketch2.addConstraint(Sketcher.Constraint("DistanceX", 14, 2, 17, 2, 2.8976))
sketch2.addConstraint(Sketcher.Constraint("DistanceX", 6, 2, 21, 2, 20.3749))
sketch2.addConstraint(Sketcher.Constraint("DistanceX", 26, 2, 15, 2, 19.691401))
sketch2.addConstraint(Sketcher.Constraint("DistanceY", 14, 2, 27, 2, 27.5008))
sketch2.addConstraint(Sketcher.Constraint("DistanceY", 34, 2, 21, 2, 7.935902))
sketch2.addConstraint(Sketcher.Constraint("DistanceY", 6, 2, 34, 2, 27.502501))
sketch2.addConstraint(Sketcher.Constraint("Distance", 8, 17.000332))
sketch2.addConstraint(Sketcher.Constraint("Distance", 9, 2.999761))
sketch2.addConstraint(Sketcher.Constraint("Distance", 11, 2.999761))
sketch2.addConstraint(Sketcher.Constraint("Distance", 13, 2.999761))
sketch2.addConstraint(Sketcher.Constraint("Distance", 14, 2.999761))
sketch2.addConstraint(Sketcher.Constraint("Distance", 16, 2.999761))
sketch2.addConstraint(Sketcher.Constraint("Distance", 18, 17.000332))
sketch2.addConstraint(Sketcher.Constraint("Distance", 19, 3.000462))
sketch2.addConstraint(Sketcher.Constraint("DistanceY", 7, 2, -1, 1, 1016.061731))
sketch2.addConstraint(Sketcher.Constraint("DistanceY", 10, 2, -1, 1, 1046.234888))
sketch2.addConstraint(Sketcher.Constraint("DistanceX", -1, 1, 15, 2, 536.117129))
sketch2.addConstraint(Sketcher.Constraint("DistanceY", 15, 2, -1, 1, 998.24332))
sketch2.addConstraint(Sketcher.Constraint("DistanceX", -1, 1, 18, 2, 503.70814))
sketch2.addConstraint(Sketcher.Constraint("DistanceY", 19, 2, -1, 1, 979.898081))
sketch2.addConstraint(Sketcher.Constraint("DistanceX", -1, 1, 20, 2, 488.06427))
sketch2.addConstraint(Sketcher.Constraint("DistanceX", -1, 1, 22, 2, 539.089881))
sketch2.addConstraint(Sketcher.Constraint("DistanceY", 24, 2, -1, 1, 1041.32681))
sketch2.addConstraint(Sketcher.Constraint("DistanceY", 26, 2, -1, 1, 978.663412))
sketch2.addConstraint(Sketcher.Constraint("DistanceY", 30, 2, -1, 1, 1040.72134))
sketch2.addConstraint(Sketcher.Constraint("DistanceX", -1, 1, 31, 2, 495.317651))
sketch2.addConstraint(Sketcher.Constraint("DistanceX", -1, 1, 35, 2, 479.59451))
sketch2.addConstraint(Sketcher.Constraint("DistanceY", 36, 2, -1, 1, 1005.55801))
sketch2.addConstraint(Sketcher.Constraint("DistanceX", -1, 1, 37, 2, 468.496439))
sketch2.addConstraint(Sketcher.Constraint("DistanceX", 12, 2, 0, 2, 19.873558))
sketch2.addConstraint(Sketcher.Constraint("DistanceY", 13, 2, 0, 2, 14.599941))
sketch2.addConstraint(Sketcher.Constraint("DistanceX", 3, 2, 14, 2, 15.242881))
sketch2.addConstraint(Sketcher.Constraint("DistanceY", 14, 2, 16, 2, 17.197079))
sketch2.addConstraint(Sketcher.Constraint("DistanceY", 6, 2, 20, 2, 32.540561))
sketch2.addConstraint(Sketcher.Constraint("DistanceY", 22, 2, 14, 2, 10.440169))
sketch2.addConstraint(Sketcher.Constraint("DistanceX", 30, 2, 13, 2, 25.188961))
sketch2.addConstraint(Sketcher.Constraint("DistanceX", 32, 2, 13, 2, 11.966528))
sketch2.addConstraint(Sketcher.Constraint("DistanceY", 32, 2, 30, 2, 11.098078))
sketch2.addConstraint(Sketcher.Constraint("DistanceY", 33, 2, 9, 2, 10.060461))
pocket1 = body.newObject("PartDesign::Pocket", "Pocket")
pocket1.Profile = sketch2
pocket1.Type = "ThroughAll"
pocket1.Reversed = True

doc.recompute()
